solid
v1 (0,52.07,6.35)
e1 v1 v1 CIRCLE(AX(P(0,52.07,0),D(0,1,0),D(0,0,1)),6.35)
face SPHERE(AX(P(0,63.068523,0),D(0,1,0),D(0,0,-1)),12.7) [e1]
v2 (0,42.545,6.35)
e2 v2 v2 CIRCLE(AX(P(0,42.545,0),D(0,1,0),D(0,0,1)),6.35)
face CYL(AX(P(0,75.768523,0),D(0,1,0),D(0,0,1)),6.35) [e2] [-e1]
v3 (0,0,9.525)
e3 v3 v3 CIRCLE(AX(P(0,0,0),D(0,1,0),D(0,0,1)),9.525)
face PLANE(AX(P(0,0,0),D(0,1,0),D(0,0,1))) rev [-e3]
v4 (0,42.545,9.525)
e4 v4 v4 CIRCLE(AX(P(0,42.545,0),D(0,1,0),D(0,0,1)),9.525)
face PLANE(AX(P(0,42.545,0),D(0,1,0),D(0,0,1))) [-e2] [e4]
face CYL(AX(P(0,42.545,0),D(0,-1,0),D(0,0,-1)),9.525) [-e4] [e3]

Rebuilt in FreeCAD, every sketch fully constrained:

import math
import FreeCAD as App
import Part
import Sketcher

V = App.Vector
Q = App.Units.Quantity

doc = App.newDocument("Part")
body = doc.addObject("PartDesign::Body", "Body")

# Sketch on XZ plane
sketch1 = body.newObject("Sketcher::SketchObject", "Sketch")
sketch1.AttachmentSupport = (doc.getObject("XZ_Plane"), [""])
sketch1.MapMode = "FlatFace"
sketch1.addGeometry(Part.Circle(V(0, 0, 0), V(0, 0, 1), 10), False)
sketch1.addConstraint([
    Sketcher.Constraint("Coincident", 0, 3, -1, 1),
    Sketcher.Constraint("Diameter", 0, Q("0.75 in")),
])
pad1 = body.newObject("PartDesign::Pad", "Pad")
pad1.Profile = sketch1
pad1.Length = Q("1.675 in")
pad1.Reversed = True

# Sketch on YZ plane
sketch2 = body.newObject("Sketcher::SketchObject", "Sketch001")
sketch2.AttachmentSupport = (doc.getObject("YZ_Plane"), [""])
sketch2.MapMode = "FlatFace"
sketch2.addGeometry([
    Part.LineSegment(V(52, 6, 0), V(43, 6, 0)),
    Part.LineSegment(V(43, 6, 0), V(43, 0, 0)),
    Part.LineSegment(V(43, 0, 0), V(76, 0, 0)),
    Part.ArcOfCircle(Part.Circle(V(63, 0, 0), V(0, 0, 1), 13), math.radians(0), math.radians(150)),
], False)
sketch2.addConstraint([
    Sketcher.Constraint("Coincident", 0, 2, 1, 1),
    Sketcher.Constraint("Coincident", 1, 2, 2, 1),
    Sketcher.Constraint("Coincident", 2, 2, 3, 1),
    Sketcher.Constraint("Coincident", 3, 2, 0, 1),
    Sketcher.Constraint("Horizontal", 0),
    Sketcher.Constraint("Vertical", 1),
    Sketcher.Constraint("Horizontal", 2),
    Sketcher.Constraint("PointOnObject", 3, 3, -1),
    Sketcher.Constraint("PointOnObject", 1, 2, -1),
    Sketcher.Constraint("Radius", 3, Q("0.5 in")),
    Sketcher.Constraint("DistanceY", 1, 2, 1, 1, Q("0.25 in")),
    Sketcher.Constraint("DistanceX", 0, 2, 0, 1, Q("0.375 in")),
    Sketcher.Constraint("DistanceX", -1, 1, 3, 2, Q("2.05 in")),
])
revolution = body.newObject("PartDesign::Revolution", "Revolution")
revolution.Profile = sketch2
revolution.ReferenceAxis = (sketch2, ["H_Axis"])
revolution.Angle = 360

doc.recompute()
